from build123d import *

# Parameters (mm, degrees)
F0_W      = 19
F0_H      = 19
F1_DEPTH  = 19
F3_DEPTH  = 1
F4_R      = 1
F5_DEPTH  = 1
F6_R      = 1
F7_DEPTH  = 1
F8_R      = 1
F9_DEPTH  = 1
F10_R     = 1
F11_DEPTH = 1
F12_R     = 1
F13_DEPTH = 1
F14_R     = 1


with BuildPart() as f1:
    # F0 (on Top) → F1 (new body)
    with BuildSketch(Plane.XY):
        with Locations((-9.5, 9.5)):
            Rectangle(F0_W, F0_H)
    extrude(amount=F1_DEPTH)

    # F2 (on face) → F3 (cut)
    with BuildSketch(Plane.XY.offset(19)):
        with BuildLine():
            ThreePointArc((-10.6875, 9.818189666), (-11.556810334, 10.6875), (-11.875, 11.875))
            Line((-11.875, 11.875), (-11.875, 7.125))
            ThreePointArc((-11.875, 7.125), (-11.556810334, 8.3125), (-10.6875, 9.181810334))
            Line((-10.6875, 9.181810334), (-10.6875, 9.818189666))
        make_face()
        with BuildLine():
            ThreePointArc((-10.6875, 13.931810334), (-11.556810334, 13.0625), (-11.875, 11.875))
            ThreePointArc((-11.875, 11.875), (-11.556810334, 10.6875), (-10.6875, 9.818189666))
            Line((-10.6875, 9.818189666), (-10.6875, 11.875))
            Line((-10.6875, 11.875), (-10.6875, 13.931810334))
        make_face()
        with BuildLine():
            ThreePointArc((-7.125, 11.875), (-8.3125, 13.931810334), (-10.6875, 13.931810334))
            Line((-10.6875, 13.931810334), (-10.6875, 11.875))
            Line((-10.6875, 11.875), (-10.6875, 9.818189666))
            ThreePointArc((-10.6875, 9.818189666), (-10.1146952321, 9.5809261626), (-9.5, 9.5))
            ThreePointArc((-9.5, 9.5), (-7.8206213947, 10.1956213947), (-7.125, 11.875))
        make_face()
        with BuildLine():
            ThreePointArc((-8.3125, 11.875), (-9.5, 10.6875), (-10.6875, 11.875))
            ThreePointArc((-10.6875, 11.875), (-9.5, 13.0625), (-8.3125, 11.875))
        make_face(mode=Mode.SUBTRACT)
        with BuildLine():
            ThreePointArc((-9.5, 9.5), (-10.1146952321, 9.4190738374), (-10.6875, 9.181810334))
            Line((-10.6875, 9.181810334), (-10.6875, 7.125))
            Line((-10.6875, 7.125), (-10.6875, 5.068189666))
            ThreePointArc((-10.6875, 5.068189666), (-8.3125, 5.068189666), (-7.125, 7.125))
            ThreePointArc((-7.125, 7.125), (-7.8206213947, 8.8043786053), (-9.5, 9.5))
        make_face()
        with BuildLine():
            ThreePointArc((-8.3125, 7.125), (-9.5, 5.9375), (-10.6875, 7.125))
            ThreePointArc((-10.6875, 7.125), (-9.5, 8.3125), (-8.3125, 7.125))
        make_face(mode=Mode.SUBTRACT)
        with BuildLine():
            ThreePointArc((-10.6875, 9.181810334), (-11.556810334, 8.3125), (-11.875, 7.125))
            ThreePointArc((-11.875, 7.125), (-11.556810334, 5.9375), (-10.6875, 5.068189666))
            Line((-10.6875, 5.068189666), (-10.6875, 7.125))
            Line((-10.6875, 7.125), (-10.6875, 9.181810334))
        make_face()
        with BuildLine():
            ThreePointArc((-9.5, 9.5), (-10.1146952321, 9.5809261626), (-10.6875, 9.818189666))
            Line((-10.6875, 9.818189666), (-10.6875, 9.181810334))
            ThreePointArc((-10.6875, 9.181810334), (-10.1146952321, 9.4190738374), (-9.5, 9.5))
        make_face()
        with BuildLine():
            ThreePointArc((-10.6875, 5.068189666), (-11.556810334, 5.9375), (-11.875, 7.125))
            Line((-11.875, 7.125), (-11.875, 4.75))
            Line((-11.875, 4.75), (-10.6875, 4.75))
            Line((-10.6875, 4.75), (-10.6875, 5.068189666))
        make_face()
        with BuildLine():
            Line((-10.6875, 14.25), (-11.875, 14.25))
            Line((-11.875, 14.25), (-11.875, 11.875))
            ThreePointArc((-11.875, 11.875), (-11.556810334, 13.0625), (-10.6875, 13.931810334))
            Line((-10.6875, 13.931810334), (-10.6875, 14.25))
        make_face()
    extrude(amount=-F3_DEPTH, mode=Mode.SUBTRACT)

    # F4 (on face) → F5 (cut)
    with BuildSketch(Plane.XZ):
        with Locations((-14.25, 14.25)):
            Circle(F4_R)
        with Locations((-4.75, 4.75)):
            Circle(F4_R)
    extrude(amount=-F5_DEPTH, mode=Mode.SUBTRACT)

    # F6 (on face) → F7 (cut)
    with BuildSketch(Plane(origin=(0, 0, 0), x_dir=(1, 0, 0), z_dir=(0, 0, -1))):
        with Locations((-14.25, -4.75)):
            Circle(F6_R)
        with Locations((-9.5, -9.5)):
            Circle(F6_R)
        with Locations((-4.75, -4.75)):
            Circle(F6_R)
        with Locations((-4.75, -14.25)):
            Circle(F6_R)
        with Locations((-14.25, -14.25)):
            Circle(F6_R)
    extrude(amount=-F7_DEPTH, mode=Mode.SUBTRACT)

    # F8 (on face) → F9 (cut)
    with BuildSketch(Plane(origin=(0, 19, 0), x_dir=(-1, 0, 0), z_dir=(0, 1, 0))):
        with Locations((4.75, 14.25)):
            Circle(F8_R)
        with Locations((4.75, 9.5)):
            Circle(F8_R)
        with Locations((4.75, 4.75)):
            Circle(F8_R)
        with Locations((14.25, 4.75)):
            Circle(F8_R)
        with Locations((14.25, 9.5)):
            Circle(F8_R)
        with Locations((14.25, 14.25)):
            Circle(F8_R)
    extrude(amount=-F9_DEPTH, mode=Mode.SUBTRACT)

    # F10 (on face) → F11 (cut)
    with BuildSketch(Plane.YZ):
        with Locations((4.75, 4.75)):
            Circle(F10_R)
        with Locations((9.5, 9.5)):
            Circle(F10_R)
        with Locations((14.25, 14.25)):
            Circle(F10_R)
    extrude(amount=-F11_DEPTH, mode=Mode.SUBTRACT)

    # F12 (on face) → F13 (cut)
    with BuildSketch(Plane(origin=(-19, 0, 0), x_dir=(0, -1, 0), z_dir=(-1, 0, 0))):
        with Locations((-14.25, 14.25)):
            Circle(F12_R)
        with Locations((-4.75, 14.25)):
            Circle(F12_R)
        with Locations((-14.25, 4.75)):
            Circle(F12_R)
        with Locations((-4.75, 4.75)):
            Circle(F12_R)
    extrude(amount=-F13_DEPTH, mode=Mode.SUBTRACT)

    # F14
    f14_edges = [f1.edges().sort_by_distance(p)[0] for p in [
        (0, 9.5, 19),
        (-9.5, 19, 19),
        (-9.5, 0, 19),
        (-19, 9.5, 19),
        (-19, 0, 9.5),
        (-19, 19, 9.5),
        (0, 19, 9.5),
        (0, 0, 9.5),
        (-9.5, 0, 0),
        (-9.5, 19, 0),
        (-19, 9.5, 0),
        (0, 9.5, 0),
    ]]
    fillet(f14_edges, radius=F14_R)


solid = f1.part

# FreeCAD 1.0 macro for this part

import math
import FreeCAD as App
import Part
import Sketcher

V = App.Vector


def edges_at(feature, points):
    """Names of the edges that pass closest to the given points."""
    edges = feature.Shape.Edges
    near = lambda p: min(range(len(edges)), key=lambda i: edges[i].distToShape(Part.Vertex(*p))[0])
    return sorted({f"Edge{near(p) + 1}" for p in points})


def add_polygon(sketch, points):
    """Adds a closed chain of lines whose ends are joined by coincident constraints."""
    first, n = sketch.GeometryCount, len(points)
    for a, b in zip(points, points[1:] + points[:1]):
        sketch.addGeometry(Part.LineSegment(App.Vector(*a, 0), App.Vector(*b, 0)), False)
    for i in range(n):
        sketch.addConstraint(Sketcher.Constraint("Coincident", first + i, 2, first + (i + 1) % n, 1))

doc = App.newDocument("Part")
body = doc.addObject("PartDesign::Body", "Body")

# Sketch on XY plane
sketch1 = doc.addObject("Sketcher::SketchObject", "Sketch")
body.addObject(sketch1)
sketch1.AttachmentSupport = (doc.XY_Plane, [""])
sketch1.MapMode = "FlatFace"
add_polygon(sketch1, [(-19, 19), (-19, 0), (0, 0), (0, 19)])  # lines 0-3
sketch1.addConstraint(Sketcher.Constraint("Vertical", 0))
sketch1.addConstraint(Sketcher.Constraint("Horizontal", 1))
sketch1.addConstraint(Sketcher.Constraint("Vertical", 2))
sketch1.addConstraint(Sketcher.Constraint("Horizontal", 3))
sketch1.addConstraint(Sketcher.Constraint("Coincident", 1, 2, -1, 1))
sketch1.addConstraint(Sketcher.Constraint("Equal", 3, 0))
sketch1.addConstraint(Sketcher.Constraint("DistanceX", 1, 1, 1, 2, 19.0))
pad1 = doc.addObject("PartDesign::Pad", "Pad")
body.addObject(pad1)
pad1.Profile = sketch1
pad1.Length = 19

# Sketch on XY plane
sketch2 = doc.addObject("Sketcher::SketchObject", "Sketch001")
body.addObject(sketch2)
sketch2.AttachmentSupport = (doc.XY_Plane, [""])
sketch2.MapMode = "FlatFace"
sketch2.AttachmentOffset = App.Placement(V(0, 0, 19), App.Rotation())
sketch2.addGeometry(Part.ArcOfCircle(Part.Circle(V(-9.5, 7.125, 0), V(0, 0, 1), 2.375), math.radians(0), math.radians(90)), False)
sketch2.addGeometry(Part.ArcOfCircle(Part.Circle(V(-9.5, 11.875, 0), V(0, 0, 1), 2.375), math.radians(-90), math.radians(0)), False)
sketch2.addGeometry(Part.ArcOfCircle(Part.Circle(V(-9.5, 11.875, 0), V(0, 0, 1), 2.375), math.radians(0), math.radians(120)), False)
sketch2.addGeometry(Part.LineSegment(V(-10.6875, 13.93181, 0), V(-10.6875, 14.25, 0)), False)
sketch2.addGeometry(Part.LineSegment(V(-10.6875, 14.25, 0), V(-11.875, 14.25, 0)), False)
sketch2.addGeometry(Part.LineSegment(V(-11.875, 14.25, 0), V(-11.875, 4.75, 0)), False)
sketch2.addGeometry(Part.LineSegment(V(-11.875, 4.75, 0), V(-10.6875, 4.75, 0)), False)
sketch2.addGeometry(Part.LineSegment(V(-10.6875, 4.75, 0), V(-10.6875, 5.06819, 0)), False)
sketch2.addGeometry(Part.ArcOfCircle(Part.Circle(V(-9.5, 7.125, 0), V(0, 0, 1), 2.375), math.radians(-120), math.radians(0)), False)
sketch2.addGeometry(Part.Circle(V(-9.5, 7.125, 0), V(0, 0, 1), 1.1875), False)
sketch2.addGeometry(Part.Circle(V(-9.5, 11.875, 0), V(0, 0, 1), 1.1875), False)
sketch2.addConstraint(Sketcher.Constraint("Tangent", 0, 2, 1, 1))
sketch2.addConstraint(Sketcher.Constraint("Tangent", 1, 2, 2, 1))
sketch2.addConstraint(Sketcher.Constraint("Coincident", 2, 2, 3, 1))
sketch2.addConstraint(Sketcher.Constraint("Coincident", 3, 2, 4, 1))
sketch2.addConstraint(Sketcher.Constraint("Coincident", 4, 2, 5, 1))
sketch2.addConstraint(Sketcher.Constraint("Coincident", 5, 2, 6, 1))
sketch2.addConstraint(Sketcher.Constraint("Coincident", 6, 2, 7, 1))
sketch2.addConstraint(Sketcher.Constraint("Coincident", 7, 2, 8, 1))
sketch2.addConstraint(Sketcher.Constraint("Tangent", 8, 2, 0, 1))
sketch2.addConstraint(Sketcher.Constraint("Vertical", 3))
sketch2.addConstraint(Sketcher.Constraint("Horizontal", 4))
sketch2.addConstraint(Sketcher.Constraint("Vertical", 5))
sketch2.addConstraint(Sketcher.Constraint("Horizontal", 6))
sketch2.addConstraint(Sketcher.Constraint("Vertical", 7))
sketch2.addConstraint(Sketcher.Constraint("Coincident", 9, 3, 0, 3))
sketch2.addConstraint(Sketcher.Constraint("Coincident", 10, 3, 1, 3))
sketch2.addConstraint(Sketcher.Constraint("Equal", 0, 1))
sketch2.addConstraint(Sketcher.Constraint("Equal", 1, 2))
sketch2.addConstraint(Sketcher.Constraint("Equal", 2, 8))
sketch2.addConstraint(Sketcher.Constraint("Equal", 9, 10))
sketch2.addConstraint(Sketcher.Constraint("Horizontal", 10, 3, 1, 2))
sketch2.addConstraint(Sketcher.Constraint("Horizontal", 9, 3, 8, 2))
sketch2.addConstraint(Sketcher.Constraint("Vertical", 0, 3, 1, 3))
sketch2.addConstraint(Sketcher.Constraint("Vertical", 3, 2, 6, 2))
sketch2.addConstraint(Sketcher.Constraint("Equal", 3, 7))
sketch2.addConstraint(Sketcher.Constraint("Diameter", 9, 2.375))
sketch2.addConstraint(Sketcher.Constraint("DistanceY", 5, 2, 5, 1, 9.5))
sketch2.addConstraint(Sketcher.Constraint("Radius", 0, 2.375))
sketch2.addConstraint(Sketcher.Constraint("DistanceX", 0, 3, -1, 1, 9.5))
sketch2.addConstraint(Sketcher.Constraint("DistanceY", -1, 1, 0, 2, 9.5))
sketch2.addConstraint(Sketcher.Constraint("DistanceX", 4, 2, 4, 1, 1.1875))
sketch2.addConstraint(Sketcher.Constraint("DistanceX", 4, 2, -1, 1, 11.875))
pocket1 = doc.addObject("PartDesign::Pocket", "Pocket")
body.addObject(pocket1)
pocket1.Profile = sketch2
pocket1.Length = 1

# Sketch on XZ plane
sketch3 = doc.addObject("Sketcher::SketchObject", "Sketch002")
body.addObject(sketch3)
sketch3.AttachmentSupport = (doc.XZ_Plane, [""])
sketch3.MapMode = "FlatFace"
sketch3.addGeometry(Part.Circle(V(-14.25, 14.25, 0), V(0, 0, 1), 1), False)
sketch3.addGeometry(Part.Circle(V(-4.75, 4.75, 0), V(0, 0, 1), 1), False)
sketch3.addConstraint(Sketcher.Constraint("Equal", 0, 1))
sketch3.addConstraint(Sketcher.Constraint("Diameter", 0, 2.0))
sketch3.addConstraint(Sketcher.Constraint("DistanceX", 0, 3, 1, 3, 9.5))
sketch3.addConstraint(Sketcher.Constraint("DistanceY", 1, 3, 0, 3, 9.5))
sketch3.addConstraint(Sketcher.Constraint("DistanceX", 0, 3, -1, 1, 14.25))
sketch3.addConstraint(Sketcher.Constraint("DistanceY", -1, 1, 0, 3, 14.25))
pocket2 = doc.addObject("PartDesign::Pocket", "Pocket001")
body.addObject(pocket2)
pocket2.Profile = sketch3
pocket2.Length = 1

# Sketch on XY plane
sketch4 = doc.addObject("Sketcher::SketchObject", "Sketch003")
body.addObject(sketch4)
sketch4.AttachmentSupport = (doc.XY_Plane, [""])
sketch4.MapMode = "FlatFace"
sketch4.addGeometry(Part.Circle(V(-14.25, 4.75, 0), V(0, 0, 1), 1), False)
sketch4.addGeometry(Part.Circle(V(-9.5, 9.5, 0), V(0, 0, 1), 1), False)
sketch4.addGeometry(Part.Circle(V(-4.75, 4.75, 0), V(0, 0, 1), 1), False)
sketch4.addGeometry(Part.Circle(V(-4.75, 14.25, 0), V(0, 0, 1), 1), False)
sketch4.addGeometry(Part.Circle(V(-14.25, 14.25, 0), V(0, 0, 1), 1), False)
sketch4.addConstraint(Sketcher.Constraint("Equal", 0, 1))
sketch4.addConstraint(Sketcher.Constraint("Equal", 1, 2))
sketch4.addConstraint(Sketcher.Constraint("Equal", 2, 3))
sketch4.addConstraint(Sketcher.Constraint("Equal", 3, 4))
sketch4.addConstraint(Sketcher.Constraint("Horizontal", 0, 3, 2, 3))
sketch4.addConstraint(Sketcher.Constraint("Horizontal", 3, 3, 4, 3))
sketch4.addConstraint(Sketcher.Constraint("Vertical", 2, 3, 3, 3))
sketch4.addConstraint(Sketcher.Constraint("Vertical", 0, 3, 4, 3))
sketch4.addConstraint(Sketcher.Constraint("Diameter", 0, 2.0))
sketch4.addConstraint(Sketcher.Constraint("DistanceX", 1, 3, -1, 1, 9.5))
sketch4.addConstraint(Sketcher.Constraint("DistanceY", -1, 1, 1, 3, 9.5))
sketch4.addConstraint(Sketcher.Constraint("DistanceX", 0, 3, 2, 3, 9.5))
sketch4.addConstraint(Sketcher.Constraint("DistanceY", 2, 3, 3, 3, 9.5))
sketch4.addConstraint(Sketcher.Constraint("DistanceX", 0, 3, -1, 1, 14.25))
sketch4.addConstraint(Sketcher.Constraint("DistanceY", -1, 1, 0, 3, 4.75))
pocket3 = doc.addObject("PartDesign::Pocket", "Pocket002")
body.addObject(pocket3)
pocket3.Profile = sketch4
pocket3.Length = 1
pocket3.Reversed = True

# Sketch on XZ plane
sketch5 = doc.addObject("Sketcher::SketchObject", "Sketch004")
body.addObject(sketch5)
sketch5.AttachmentSupport = (doc.XZ_Plane, [""])
sketch5.MapMode = "FlatFace"
sketch5.AttachmentOffset = App.Placement(V(0, 0, -19), App.Rotation())
sketch5.addGeometry(Part.Circle(V(-4.75, 14.25, 0), V(0, 0, 1), 1), False)
sketch5.addGeometry(Part.Circle(V(-4.75, 9.5, 0), V(0, 0, 1), 1), False)
sketch5.addGeometry(Part.Circle(V(-4.75, 4.75, 0), V(0, 0, 1), 1), False)
sketch5.addGeometry(Part.Circle(V(-14.25, 4.75, 0), V(0, 0, 1), 1), False)
sketch5.addGeometry(Part.Circle(V(-14.25, 9.5, 0), V(0, 0, 1), 1), False)
sketch5.addGeometry(Part.Circle(V(-14.25, 14.25, 0), V(0, 0, 1), 1), False)
sketch5.addConstraint(Sketcher.Constraint("Equal", 0, 1))
sketch5.addConstraint(Sketcher.Constraint("Equal", 1, 2))
sketch5.addConstraint(Sketcher.Constraint("Equal", 2, 3))
sketch5.addConstraint(Sketcher.Constraint("Equal", 3, 4))
sketch5.addConstraint(Sketcher.Constraint("Equal", 4, 5))
sketch5.addConstraint(Sketcher.Constraint("Horizontal", 2, 3, 3, 3))
sketch5.addConstraint(Sketcher.Constraint("Horizontal", 1, 3, 4, 3))
sketch5.addConstraint(Sketcher.Constraint("Horizontal", 0, 3, 5, 3))
sketch5.addConstraint(Sketcher.Constraint("Vertical", 0, 3, 1, 3))
sketch5.addConstraint(Sketcher.Constraint("Vertical", 1, 3, 2, 3))
sketch5.addConstraint(Sketcher.Constraint("Vertical", 3, 3, 4, 3))
sketch5.addConstraint(Sketcher.Constraint("Vertical", 4, 3, 5, 3))
sketch5.addConstraint(Sketcher.Constraint("Diameter", 0, 2.0))
sketch5.addConstraint(Sketcher.Constraint("DistanceY", -1, 1, 1, 3, 9.5))
sketch5.addConstraint(Sketcher.Constraint("DistanceY", 2, 3, 0, 3, 9.5))
sketch5.addConstraint(Sketcher.Constraint("DistanceX", 3, 3, 2, 3, 9.5))
sketch5.addConstraint(Sketcher.Constraint("DistanceX", 0, 3, -1, 1, 4.75))
sketch5.addConstraint(Sketcher.Constraint("DistanceY", -1, 1, 0, 3, 14.25))
pocket4 = doc.addObject("PartDesign::Pocket", "Pocket003")
body.addObject(pocket4)
pocket4.Profile = sketch5
pocket4.Length = 1
pocket4.Reversed = True

# Sketch on YZ plane
sketch6 = doc.addObject("Sketcher::SketchObject", "Sketch005")
body.addObject(sketch6)
sketch6.AttachmentSupport = (doc.YZ_Plane, [""])
sketch6.MapMode = "FlatFace"
sketch6.addGeometry(Part.Circle(V(4.75, 4.75, 0), V(0, 0, 1), 1), False)
sketch6.addGeometry(Part.Circle(V(9.5, 9.5, 0), V(0, 0, 1), 1), False)
sketch6.addGeometry(Part.Circle(V(14.25, 14.25, 0), V(0, 0, 1), 1), False)
sketch6.addConstraint(Sketcher.Constraint("Equal", 0, 1))
sketch6.addConstraint(Sketcher.Constraint("Equal", 1, 2))
sketch6.addConstraint(Sketcher.Constraint("Diameter", 0, 2.0))
sketch6.addConstraint(Sketcher.Constraint("DistanceX", -1, 1, 1, 3, 9.5))
sketch6.addConstraint(Sketcher.Constraint("DistanceY", -1, 1, 1, 3, 9.5))
sketch6.addConstraint(Sketcher.Constraint("DistanceX", 0, 3, 2, 3, 9.5))
sketch6.addConstraint(Sketcher.Constraint("DistanceY", 0, 3, 2, 3, 9.5))
sketch6.addConstraint(Sketcher.Constraint("DistanceX", -1, 1, 0, 3, 4.75))
sketch6.addConstraint(Sketcher.Constraint("DistanceY", -1, 1, 0, 3, 4.75))
pocket5 = doc.addObject("PartDesign::Pocket", "Pocket004")
body.addObject(pocket5)
pocket5.Profile = sketch6
pocket5.Length = 1

# Sketch on YZ plane
sketch7 = doc.addObject("Sketcher::SketchObject", "Sketch006")
body.addObject(sketch7)
sketch7.AttachmentSupport = (doc.YZ_Plane, [""])
sketch7.MapMode = "FlatFace"
sketch7.AttachmentOffset = App.Placement(V(0, 0, -19), App.Rotation())
sketch7.addGeometry(Part.Circle(V(14.25, 14.25, 0), V(0, 0, 1), 1), False)
sketch7.addGeometry(Part.Circle(V(4.75, 14.25, 0), V(0, 0, 1), 1), False)
sketch7.addGeometry(Part.Circle(V(14.25, 4.75, 0), V(0, 0, 1), 1), False)
sketch7.addGeometry(Part.Circle(V(4.75, 4.75, 0), V(0, 0, 1), 1), False)
sketch7.addConstraint(Sketcher.Constraint("Equal", 0, 1))
sketch7.addConstraint(Sketcher.Constraint("Equal", 1, 2))
sketch7.addConstraint(Sketcher.Constraint("Equal", 2, 3))
sketch7.addConstraint(Sketcher.Constraint("Horizontal", 0, 3, 1, 3))
sketch7.addConstraint(Sketcher.Constraint("Horizontal", 2, 3, 3, 3))
sketch7.addConstraint(Sketcher.Constraint("Vertical", 0, 3, 2, 3))
sketch7.addConstraint(Sketcher.Constraint("Vertical", 1, 3, 3, 3))
sketch7.addConstraint(Sketcher.Constraint("Diameter", 0, 2.0))
sketch7.addConstraint(Sketcher.Constraint("DistanceX", 1, 3, 0, 3, 9.5))
sketch7.addConstraint(Sketcher.Constraint("DistanceY", 2, 3, 0, 3, 9.5))
sketch7.addConstraint(Sketcher.Constraint("DistanceX", -1, 1, 0, 3, 14.25))
sketch7.addConstraint(Sketcher.Constraint("DistanceY", -1, 1, 0, 3, 14.25))
pocket6 = doc.addObject("PartDesign::Pocket", "Pocket005")
body.addObject(pocket6)
pocket6.Profile = sketch7
pocket6.Length = 1
pocket6.Reversed = True
doc.recompute()

fillet = doc.addObject("PartDesign::Fillet", "Fillet")
body.addObject(fillet)
fillet.Base = (pocket6, edges_at(pocket6, [
    (0, 9.5, 19),
    (-9.5, 19, 19),
    (-9.5, 0, 19),
    (-19, 9.5, 19),
    (-19, 0, 9.5),
    (-19, 19, 9.5),
    (0, 19, 9.5),
    (0, 0, 9.5),
    (-9.5, 0, 0),
    (-9.5, 19, 0),
    (-19, 9.5, 0),
    (0, 9.5, 0),
]))
fillet.Radius = 1

doc.recompute()
